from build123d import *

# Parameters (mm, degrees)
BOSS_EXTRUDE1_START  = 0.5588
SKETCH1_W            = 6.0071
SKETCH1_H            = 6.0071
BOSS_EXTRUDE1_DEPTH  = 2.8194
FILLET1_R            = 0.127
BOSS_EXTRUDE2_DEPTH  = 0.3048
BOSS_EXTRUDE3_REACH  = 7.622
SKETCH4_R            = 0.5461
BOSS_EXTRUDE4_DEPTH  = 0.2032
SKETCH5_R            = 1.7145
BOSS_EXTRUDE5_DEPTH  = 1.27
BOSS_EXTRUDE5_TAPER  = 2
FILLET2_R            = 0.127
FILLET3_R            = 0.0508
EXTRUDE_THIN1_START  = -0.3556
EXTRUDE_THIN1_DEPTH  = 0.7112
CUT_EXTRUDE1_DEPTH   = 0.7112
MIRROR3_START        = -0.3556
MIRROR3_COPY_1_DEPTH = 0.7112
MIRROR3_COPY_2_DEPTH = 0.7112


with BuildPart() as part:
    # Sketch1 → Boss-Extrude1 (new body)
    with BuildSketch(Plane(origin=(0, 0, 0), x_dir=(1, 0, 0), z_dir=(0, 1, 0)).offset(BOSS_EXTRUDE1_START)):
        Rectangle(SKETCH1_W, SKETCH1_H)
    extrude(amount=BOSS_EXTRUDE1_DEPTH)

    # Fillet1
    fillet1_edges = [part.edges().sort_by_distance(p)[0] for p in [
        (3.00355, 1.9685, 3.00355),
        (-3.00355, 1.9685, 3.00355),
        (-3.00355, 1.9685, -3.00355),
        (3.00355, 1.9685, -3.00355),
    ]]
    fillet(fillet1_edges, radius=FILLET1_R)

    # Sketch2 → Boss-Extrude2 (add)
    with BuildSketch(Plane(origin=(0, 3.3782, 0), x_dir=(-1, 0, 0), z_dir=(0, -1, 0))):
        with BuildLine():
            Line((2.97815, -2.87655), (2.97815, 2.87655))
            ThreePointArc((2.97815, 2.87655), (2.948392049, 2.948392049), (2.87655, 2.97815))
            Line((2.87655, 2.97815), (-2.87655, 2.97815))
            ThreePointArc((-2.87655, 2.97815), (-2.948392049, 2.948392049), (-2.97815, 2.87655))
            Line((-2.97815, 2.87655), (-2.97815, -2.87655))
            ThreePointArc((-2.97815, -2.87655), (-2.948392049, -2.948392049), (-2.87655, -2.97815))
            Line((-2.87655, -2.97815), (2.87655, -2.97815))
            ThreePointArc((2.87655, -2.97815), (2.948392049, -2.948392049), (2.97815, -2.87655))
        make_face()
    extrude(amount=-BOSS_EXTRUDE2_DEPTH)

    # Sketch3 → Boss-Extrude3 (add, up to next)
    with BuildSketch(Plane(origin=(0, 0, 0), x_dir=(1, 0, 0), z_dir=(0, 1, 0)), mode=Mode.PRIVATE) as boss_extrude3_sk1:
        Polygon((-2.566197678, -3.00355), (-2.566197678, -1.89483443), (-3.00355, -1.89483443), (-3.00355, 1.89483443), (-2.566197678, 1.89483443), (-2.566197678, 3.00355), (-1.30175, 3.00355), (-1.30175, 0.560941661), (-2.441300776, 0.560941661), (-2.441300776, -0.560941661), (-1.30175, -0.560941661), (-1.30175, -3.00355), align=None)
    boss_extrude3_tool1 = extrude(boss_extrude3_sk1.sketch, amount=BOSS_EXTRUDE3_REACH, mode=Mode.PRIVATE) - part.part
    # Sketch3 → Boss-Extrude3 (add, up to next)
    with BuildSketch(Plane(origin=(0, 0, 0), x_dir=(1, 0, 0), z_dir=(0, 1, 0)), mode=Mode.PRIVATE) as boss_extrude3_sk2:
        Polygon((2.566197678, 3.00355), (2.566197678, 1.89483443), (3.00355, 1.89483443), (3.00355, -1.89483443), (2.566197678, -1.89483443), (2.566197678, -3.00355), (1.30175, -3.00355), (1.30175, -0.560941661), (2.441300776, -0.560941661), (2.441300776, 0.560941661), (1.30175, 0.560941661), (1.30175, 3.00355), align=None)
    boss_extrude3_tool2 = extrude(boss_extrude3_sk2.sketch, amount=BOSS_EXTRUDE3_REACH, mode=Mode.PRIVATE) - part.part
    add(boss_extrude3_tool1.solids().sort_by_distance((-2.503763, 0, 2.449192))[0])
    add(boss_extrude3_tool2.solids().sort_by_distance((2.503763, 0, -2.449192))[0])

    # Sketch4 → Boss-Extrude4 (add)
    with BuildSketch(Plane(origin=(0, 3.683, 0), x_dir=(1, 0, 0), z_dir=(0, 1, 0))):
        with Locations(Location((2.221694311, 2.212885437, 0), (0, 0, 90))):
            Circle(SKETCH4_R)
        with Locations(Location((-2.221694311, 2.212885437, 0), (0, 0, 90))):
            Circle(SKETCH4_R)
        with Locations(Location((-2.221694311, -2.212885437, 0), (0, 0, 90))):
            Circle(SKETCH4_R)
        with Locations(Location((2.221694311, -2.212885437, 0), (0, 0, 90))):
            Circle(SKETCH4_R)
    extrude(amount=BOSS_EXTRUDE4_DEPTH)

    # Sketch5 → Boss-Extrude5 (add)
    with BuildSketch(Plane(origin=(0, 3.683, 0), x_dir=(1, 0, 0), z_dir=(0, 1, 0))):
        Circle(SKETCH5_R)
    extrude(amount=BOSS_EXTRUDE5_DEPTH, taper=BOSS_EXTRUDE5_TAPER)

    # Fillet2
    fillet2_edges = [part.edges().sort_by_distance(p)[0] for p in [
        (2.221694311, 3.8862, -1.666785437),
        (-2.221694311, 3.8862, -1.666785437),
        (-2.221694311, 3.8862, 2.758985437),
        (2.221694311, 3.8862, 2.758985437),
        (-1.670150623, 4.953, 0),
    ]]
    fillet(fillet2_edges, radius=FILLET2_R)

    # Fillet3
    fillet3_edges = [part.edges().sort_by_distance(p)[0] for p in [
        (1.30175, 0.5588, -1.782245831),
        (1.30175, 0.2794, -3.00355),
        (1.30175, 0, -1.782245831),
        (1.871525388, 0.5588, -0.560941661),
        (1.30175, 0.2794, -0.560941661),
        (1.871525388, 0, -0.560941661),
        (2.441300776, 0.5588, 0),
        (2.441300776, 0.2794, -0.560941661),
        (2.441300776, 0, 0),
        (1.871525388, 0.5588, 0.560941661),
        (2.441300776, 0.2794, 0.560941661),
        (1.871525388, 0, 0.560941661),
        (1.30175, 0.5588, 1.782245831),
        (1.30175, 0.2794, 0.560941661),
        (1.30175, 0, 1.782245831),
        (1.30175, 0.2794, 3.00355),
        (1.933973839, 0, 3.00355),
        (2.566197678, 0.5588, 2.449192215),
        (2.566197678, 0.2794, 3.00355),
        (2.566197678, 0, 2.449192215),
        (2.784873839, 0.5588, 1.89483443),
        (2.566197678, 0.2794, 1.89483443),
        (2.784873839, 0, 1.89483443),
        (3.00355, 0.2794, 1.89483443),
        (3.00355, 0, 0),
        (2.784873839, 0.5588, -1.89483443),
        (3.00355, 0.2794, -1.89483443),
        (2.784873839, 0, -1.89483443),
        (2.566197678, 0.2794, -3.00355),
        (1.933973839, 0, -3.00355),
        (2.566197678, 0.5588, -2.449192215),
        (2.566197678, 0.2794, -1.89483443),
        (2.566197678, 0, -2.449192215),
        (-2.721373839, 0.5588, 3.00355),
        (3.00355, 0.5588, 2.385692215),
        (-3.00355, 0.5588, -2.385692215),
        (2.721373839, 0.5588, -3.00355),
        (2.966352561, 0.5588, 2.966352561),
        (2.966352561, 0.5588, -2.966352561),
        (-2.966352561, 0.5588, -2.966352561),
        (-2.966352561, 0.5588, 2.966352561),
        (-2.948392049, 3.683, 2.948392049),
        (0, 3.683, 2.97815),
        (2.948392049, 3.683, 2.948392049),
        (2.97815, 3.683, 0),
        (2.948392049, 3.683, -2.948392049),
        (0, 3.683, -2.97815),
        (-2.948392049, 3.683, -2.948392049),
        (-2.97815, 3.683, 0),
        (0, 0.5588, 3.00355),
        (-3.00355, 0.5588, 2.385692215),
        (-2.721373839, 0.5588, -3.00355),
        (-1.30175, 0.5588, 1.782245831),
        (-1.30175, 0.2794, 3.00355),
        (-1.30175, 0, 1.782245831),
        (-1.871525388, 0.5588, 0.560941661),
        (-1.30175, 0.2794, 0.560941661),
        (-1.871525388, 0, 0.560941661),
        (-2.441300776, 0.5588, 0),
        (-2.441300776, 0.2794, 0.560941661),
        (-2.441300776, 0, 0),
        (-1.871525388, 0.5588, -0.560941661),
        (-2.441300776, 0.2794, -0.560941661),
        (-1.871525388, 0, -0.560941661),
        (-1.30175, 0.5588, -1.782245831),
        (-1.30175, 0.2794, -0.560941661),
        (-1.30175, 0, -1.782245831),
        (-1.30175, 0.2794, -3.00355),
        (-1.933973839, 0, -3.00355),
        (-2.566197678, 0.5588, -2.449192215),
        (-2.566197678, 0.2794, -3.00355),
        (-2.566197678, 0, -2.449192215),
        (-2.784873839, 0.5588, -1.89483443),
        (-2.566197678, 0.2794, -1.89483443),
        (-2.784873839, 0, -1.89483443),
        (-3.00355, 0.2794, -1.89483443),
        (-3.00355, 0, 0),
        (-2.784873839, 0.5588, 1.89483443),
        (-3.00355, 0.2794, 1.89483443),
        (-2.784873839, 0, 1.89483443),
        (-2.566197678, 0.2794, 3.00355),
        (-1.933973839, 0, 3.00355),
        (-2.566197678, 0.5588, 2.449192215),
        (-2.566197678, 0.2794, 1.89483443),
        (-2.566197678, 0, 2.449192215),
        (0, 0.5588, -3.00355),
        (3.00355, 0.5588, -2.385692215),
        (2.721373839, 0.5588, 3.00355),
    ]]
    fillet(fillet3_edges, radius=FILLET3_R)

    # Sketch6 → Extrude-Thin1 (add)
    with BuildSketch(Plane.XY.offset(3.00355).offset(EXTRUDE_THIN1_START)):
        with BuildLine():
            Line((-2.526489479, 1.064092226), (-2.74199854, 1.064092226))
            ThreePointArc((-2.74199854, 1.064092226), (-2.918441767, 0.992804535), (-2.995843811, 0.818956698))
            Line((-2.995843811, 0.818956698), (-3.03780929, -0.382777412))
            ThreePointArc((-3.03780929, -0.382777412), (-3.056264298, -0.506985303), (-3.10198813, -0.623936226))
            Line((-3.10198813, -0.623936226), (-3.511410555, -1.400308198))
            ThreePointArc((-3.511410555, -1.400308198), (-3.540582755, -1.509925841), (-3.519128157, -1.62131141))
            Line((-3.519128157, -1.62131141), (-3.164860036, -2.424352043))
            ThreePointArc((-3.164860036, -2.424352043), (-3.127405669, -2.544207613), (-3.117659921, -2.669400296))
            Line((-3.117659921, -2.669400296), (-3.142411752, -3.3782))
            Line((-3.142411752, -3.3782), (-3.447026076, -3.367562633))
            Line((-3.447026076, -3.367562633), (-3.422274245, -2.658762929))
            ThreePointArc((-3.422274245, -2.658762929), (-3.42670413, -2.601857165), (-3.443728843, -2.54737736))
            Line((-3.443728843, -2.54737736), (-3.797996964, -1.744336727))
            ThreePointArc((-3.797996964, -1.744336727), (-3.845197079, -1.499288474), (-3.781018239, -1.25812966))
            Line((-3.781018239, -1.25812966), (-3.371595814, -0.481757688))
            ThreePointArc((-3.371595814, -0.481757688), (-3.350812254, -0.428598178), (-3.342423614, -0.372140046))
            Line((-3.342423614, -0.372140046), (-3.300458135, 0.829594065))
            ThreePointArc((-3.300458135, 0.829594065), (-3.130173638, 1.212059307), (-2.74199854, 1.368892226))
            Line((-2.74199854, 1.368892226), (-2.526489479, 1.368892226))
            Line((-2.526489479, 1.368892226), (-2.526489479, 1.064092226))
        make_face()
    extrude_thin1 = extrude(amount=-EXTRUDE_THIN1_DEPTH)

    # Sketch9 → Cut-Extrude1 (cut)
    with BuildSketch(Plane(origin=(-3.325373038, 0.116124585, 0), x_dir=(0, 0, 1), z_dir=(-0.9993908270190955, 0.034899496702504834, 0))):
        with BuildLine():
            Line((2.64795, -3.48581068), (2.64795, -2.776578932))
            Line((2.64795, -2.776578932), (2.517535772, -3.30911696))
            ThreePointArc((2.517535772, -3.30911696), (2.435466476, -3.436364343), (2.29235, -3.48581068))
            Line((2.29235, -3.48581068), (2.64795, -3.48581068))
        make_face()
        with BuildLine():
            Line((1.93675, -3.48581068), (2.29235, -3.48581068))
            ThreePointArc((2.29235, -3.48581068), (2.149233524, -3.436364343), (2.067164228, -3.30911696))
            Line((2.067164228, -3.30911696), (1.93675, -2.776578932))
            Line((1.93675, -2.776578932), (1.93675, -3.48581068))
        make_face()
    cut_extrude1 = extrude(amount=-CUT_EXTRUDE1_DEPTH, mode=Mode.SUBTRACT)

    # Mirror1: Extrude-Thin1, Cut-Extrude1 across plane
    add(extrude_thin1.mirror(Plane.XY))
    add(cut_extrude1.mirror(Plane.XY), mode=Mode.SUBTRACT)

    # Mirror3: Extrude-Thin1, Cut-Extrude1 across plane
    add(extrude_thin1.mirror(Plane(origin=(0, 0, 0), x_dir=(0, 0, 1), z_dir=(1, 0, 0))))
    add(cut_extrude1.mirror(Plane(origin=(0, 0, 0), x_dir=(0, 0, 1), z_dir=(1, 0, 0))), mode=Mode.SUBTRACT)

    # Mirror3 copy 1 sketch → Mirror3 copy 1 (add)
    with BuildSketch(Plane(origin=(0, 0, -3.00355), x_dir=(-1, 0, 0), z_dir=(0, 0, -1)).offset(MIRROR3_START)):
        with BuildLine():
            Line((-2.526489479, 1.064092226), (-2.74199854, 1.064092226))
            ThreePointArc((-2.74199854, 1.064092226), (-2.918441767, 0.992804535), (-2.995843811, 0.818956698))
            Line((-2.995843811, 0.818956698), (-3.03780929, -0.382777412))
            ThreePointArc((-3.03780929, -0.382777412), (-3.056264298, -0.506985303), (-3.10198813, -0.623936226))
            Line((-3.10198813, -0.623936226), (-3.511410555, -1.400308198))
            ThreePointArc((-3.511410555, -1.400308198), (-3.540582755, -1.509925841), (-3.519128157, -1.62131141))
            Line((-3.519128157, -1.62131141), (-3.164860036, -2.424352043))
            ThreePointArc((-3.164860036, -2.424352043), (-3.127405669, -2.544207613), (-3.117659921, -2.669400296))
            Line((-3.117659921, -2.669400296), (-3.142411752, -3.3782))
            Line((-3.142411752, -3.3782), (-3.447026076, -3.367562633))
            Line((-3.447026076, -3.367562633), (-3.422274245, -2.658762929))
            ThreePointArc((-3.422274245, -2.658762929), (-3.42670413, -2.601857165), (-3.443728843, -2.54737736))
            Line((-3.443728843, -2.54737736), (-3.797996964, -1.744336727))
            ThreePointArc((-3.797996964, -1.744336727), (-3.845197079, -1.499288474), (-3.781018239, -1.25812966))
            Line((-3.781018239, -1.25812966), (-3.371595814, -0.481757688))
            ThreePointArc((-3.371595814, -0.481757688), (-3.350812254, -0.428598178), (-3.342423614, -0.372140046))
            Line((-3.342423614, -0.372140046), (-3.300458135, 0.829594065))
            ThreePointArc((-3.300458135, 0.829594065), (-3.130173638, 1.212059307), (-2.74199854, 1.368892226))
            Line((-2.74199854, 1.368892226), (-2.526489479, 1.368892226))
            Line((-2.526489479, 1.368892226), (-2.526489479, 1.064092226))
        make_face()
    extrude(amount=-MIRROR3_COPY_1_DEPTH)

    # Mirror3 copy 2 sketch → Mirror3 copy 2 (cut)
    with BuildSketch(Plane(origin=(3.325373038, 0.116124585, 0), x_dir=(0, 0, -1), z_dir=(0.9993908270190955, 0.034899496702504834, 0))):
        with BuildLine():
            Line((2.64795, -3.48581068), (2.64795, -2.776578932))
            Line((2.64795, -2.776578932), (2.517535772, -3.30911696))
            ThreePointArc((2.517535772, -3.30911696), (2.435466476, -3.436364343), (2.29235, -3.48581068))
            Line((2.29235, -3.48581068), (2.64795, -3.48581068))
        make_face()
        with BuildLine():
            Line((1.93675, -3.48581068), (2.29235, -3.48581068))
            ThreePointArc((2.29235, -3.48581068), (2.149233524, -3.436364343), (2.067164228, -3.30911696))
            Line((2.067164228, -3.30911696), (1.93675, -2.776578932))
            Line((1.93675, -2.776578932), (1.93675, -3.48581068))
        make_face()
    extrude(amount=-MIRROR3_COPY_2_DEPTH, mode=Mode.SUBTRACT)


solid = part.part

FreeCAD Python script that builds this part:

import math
import FreeCAD as App
import Part
import Sketcher

V = App.Vector
Q = App.Units.Quantity


def edges_at(feature, points):
    """Names of the edges that pass closest to the given points."""
    edges = feature.Shape.Edges
    near = lambda p: min(range(len(edges)), key=lambda i: edges[i].distToShape(Part.Vertex(*p))[0])
    return sorted({f"Edge{near(p) + 1}" for p in points})

doc = App.newDocument("Part")
body = doc.addObject("PartDesign::Body", "Body")

# Sketch on XZ plane
sketch1 = body.newObject("Sketcher::SketchObject", "Sketch")
sketch1.AttachmentSupport = (doc.getObject("XZ_Plane"), [""])
sketch1.MapMode = "FlatFace"
sketch1.AttachmentOffset = App.Placement(V(0, 0, -0.022 * 25.4), App.Rotation())
sketch1.addGeometry([
    Part.LineSegment(V(-3, -3, 0), V(-3, 3, 0)),
    Part.LineSegment(V(-3, 3, 0), V(3, 3, 0)),
    Part.LineSegment(V(3, 3, 0), V(3, -3, 0)),
    Part.LineSegment(V(3, -3, 0), V(-3, -3, 0)),
], False)
sketch1.addConstraint([
    Sketcher.Constraint("Coincident", 0, 2, 1, 1),
    Sketcher.Constraint("Coincident", 1, 2, 2, 1),
    Sketcher.Constraint("Coincident", 2, 2, 3, 1),
    Sketcher.Constraint("Coincident", 3, 2, 0, 1),
    Sketcher.Constraint("Vertical", 0),
    Sketcher.Constraint("Horizontal", 1),
    Sketcher.Constraint("Vertical", 2),
    Sketcher.Constraint("Horizontal", 3),
    Sketcher.Constraint("Symmetric", 0, 2, 2, 2, -1, 1),
    Sketcher.Constraint("Equal", 3, 0),
    Sketcher.Constraint("DistanceX", 1, 1, 1, 2, Q("0.2365 in")),
])
pad1 = body.newObject("PartDesign::Pad", "Pad")
pad1.Profile = sketch1
pad1.Length = Q("0.111 in")
pad1.Reversed = True
doc.recompute()

fillet = body.newObject("PartDesign::Fillet", "Fillet")
fillet.Base = (pad1, edges_at(pad1, [
    (3.004, 1.968, 3.004),
    (-3.004, 1.968, 3.004),
    (-3.004, 1.968, -3.004),
    (3.004, 1.968, -3.004),
]))
fillet.Radius = Q("0.005 in")

# Sketch on XZ plane
sketch2 = body.newObject("Sketcher::SketchObject", "Sketch001")
sketch2.AttachmentSupport = (doc.getObject("XZ_Plane"), [""])
sketch2.MapMode = "FlatFace"
sketch2.AttachmentOffset = App.Placement(V(0, 0, -0.133 * 25.4), App.Rotation())
sketch2.addGeometry([
    Part.LineSegment(V(-2.98, 2.88, 0), V(-2.98, -2.88, 0)),  # 0
    Part.ArcOfCircle(Part.Circle(V(-2.88, -2.88, 0), V(0, 0, 1), 0.1), math.radians(180), math.radians(270)),  # 1
    Part.LineSegment(V(-2.88, -2.98, 0), V(2.88, -2.98, 0)),  # 2
    Part.ArcOfCircle(Part.Circle(V(2.88, -2.88, 0), V(0, 0, 1), 0.1), math.radians(-90), math.radians(0)),  # 3
    Part.LineSegment(V(2.98, -2.88, 0), V(2.98, 2.88, 0)),  # 4
    Part.ArcOfCircle(Part.Circle(V(2.88, 2.88, 0), V(0, 0, 1), 0.1), math.radians(0), math.radians(90)),  # 5
    Part.LineSegment(V(2.88, 2.98, 0), V(-2.88, 2.98, 0)),  # 6
    Part.ArcOfCircle(Part.Circle(V(-2.88, 2.88, 0), V(0, 0, 1), 0.1), math.radians(90), math.radians(180)),  # 7
], False)
sketch2.addConstraint([
    Sketcher.Constraint("Tangent", 0, 2, 1, 1),
    Sketcher.Constraint("Tangent", 1, 2, 2, 1),
    Sketcher.Constraint("Tangent", 2, 2, 3, 1),
    Sketcher.Constraint("Tangent", 3, 2, 4, 1),
    Sketcher.Constraint("Tangent", 4, 2, 5, 1),
    Sketcher.Constraint("Tangent", 5, 2, 6, 1),
    Sketcher.Constraint("Tangent", 6, 2, 7, 1),
    Sketcher.Constraint("Tangent", 7, 2, 0, 1),
    Sketcher.Constraint("Vertical", 0),
    Sketcher.Constraint("Horizontal", 2),
    Sketcher.Constraint("Vertical", 4),
    Sketcher.Constraint("Horizontal", 6),
    Sketcher.Constraint("Equal", 1, 3),
    Sketcher.Constraint("Equal", 3, 5),
    Sketcher.Constraint("Equal", 5, 7),
    Sketcher.Constraint("Symmetric", 1, 3, 5, 3, -1, 1),
    Sketcher.Constraint("Equal", 6, 0),
    Sketcher.Constraint("Radius", 1, Q("0.004 in")),
    Sketcher.Constraint("DistanceX", 2, 1, 2, 2, Q("0.2265 in")),
])
pad2 = body.newObject("PartDesign::Pad", "Pad001")
pad2.Profile = sketch2
pad2.Length = Q("0.012 in")
pad2.Reversed = True

# Sketch on XZ plane
sketch3 = body.newObject("Sketcher::SketchObject", "Sketch002")
sketch3.AttachmentSupport = (doc.getObject("XZ_Plane"), [""])
sketch3.MapMode = "FlatFace"
sketch3.addGeometry([
    Part.LineSegment(V(-2.57, 1.89, 0), V(-2.57, 3, 0)),  # 0
    Part.LineSegment(V(-2.57, 3, 0), V(-1.3, 3, 0)),  # 1
    Part.LineSegment(V(-1.3, 3, 0), V(-1.3, 0.56, 0)),  # 2
    Part.LineSegment(V(-1.3, 0.56, 0), V(-2.44, 0.56, 0)),  # 3
    Part.LineSegment(V(-2.44, 0.56, 0), V(-2.44, -0.56, 0)),  # 4
    Part.LineSegment(V(-2.44, -0.56, 0), V(-1.3, -0.56, 0)),  # 5
    Part.LineSegment(V(-1.3, -0.56, 0), V(-1.3, -3, 0)),  # 6
    Part.LineSegment(V(-1.3, -3, 0), V(-2.57, -3, 0)),  # 7
    Part.LineSegment(V(-2.57, -3, 0), V(-2.57, -1.89, 0)),  # 8
    Part.LineSegment(V(-2.57, -1.89, 0), V(-3, -1.89, 0)),  # 9
    Part.LineSegment(V(-3, -1.89, 0), V(-3, 1.89, 0)),  # 10
    Part.LineSegment(V(-3, 1.89, 0), V(-2.57, 1.89, 0)),  # 11
], False)
sketch3.addConstraint([
    Sketcher.Constraint("Coincident", 0, 2, 1, 1),
    Sketcher.Constraint("Coincident", 1, 2, 2, 1),
    Sketcher.Constraint("Coincident", 2, 2, 3, 1),
    Sketcher.Constraint("Coincident", 3, 2, 4, 1),
    Sketcher.Constraint("Coincident", 4, 2, 5, 1),
    Sketcher.Constraint("Coincident", 5, 2, 6, 1),
    Sketcher.Constraint("Coincident", 6, 2, 7, 1),
    Sketcher.Constraint("Coincident", 7, 2, 8, 1),
    Sketcher.Constraint("Coincident", 8, 2, 9, 1),
    Sketcher.Constraint("Coincident", 9, 2, 10, 1),
    Sketcher.Constraint("Coincident", 10, 2, 11, 1),
    Sketcher.Constraint("Coincident", 11, 2, 0, 1),
    Sketcher.Constraint("Vertical", 0),
    Sketcher.Constraint("Horizontal", 1),
    Sketcher.Constraint("Vertical", 2),
    Sketcher.Constraint("Horizontal", 3),
    Sketcher.Constraint("Vertical", 4),
    Sketcher.Constraint("Horizontal", 5),
    Sketcher.Constraint("Vertical", 6),
    Sketcher.Constraint("Horizontal", 7),
    Sketcher.Constraint("Vertical", 8),
    Sketcher.Constraint("Horizontal", 9),
    Sketcher.Constraint("Vertical", 10),
    Sketcher.Constraint("Horizontal", 11),
    Sketcher.Constraint("Symmetric", 2, 2, 5, 2, -1),
    Sketcher.Constraint("Symmetric", 0, 2, 7, 2, -1),
    Sketcher.Constraint("Equal", 0, 8),
    Sketcher.Constraint("DistanceX", 9, 2, 6, 2, Q("0.067 in")),
    Sketcher.Constraint("DistanceY", 6, 2, 1, 2, Q("0.2365 in")),
    Sketcher.Constraint("DistanceX", 3, 2, 3, 1, Q("1.139551 mm")),
    Sketcher.Constraint("DistanceY", 2, 2, 2, 1, Q("2.442608 mm")),
    Sketcher.Constraint("DistanceY", 10, 1, 10, 2, Q("3.789669 mm")),
    Sketcher.Constraint("DistanceX", 3, 2, -1, 1, Q("2.441301 mm")),
    Sketcher.Constraint("DistanceX", 1, 1, 1, 2, Q("1.264448 mm")),
])
pad3 = body.newObject("PartDesign::Pad", "Pad002")
pad3.Profile = sketch3
pad3.Type = "UpToFirst"
pad3.Reversed = True

# Sketch on XZ plane
sketch4 = body.newObject("Sketcher::SketchObject", "Sketch003")
sketch4.AttachmentSupport = (doc.getObject("XZ_Plane"), [""])
sketch4.MapMode = "FlatFace"
sketch4.addGeometry([
    Part.LineSegment(V(2.57, -1.89, 0), V(2.57, -3, 0)),  # 0
    Part.LineSegment(V(2.57, -3, 0), V(1.3, -3, 0)),  # 1
    Part.LineSegment(V(1.3, -3, 0), V(1.3, -0.56, 0)),  # 2
    Part.LineSegment(V(1.3, -0.56, 0), V(2.44, -0.56, 0)),  # 3
    Part.LineSegment(V(2.44, -0.56, 0), V(2.44, 0.56, 0)),  # 4
    Part.LineSegment(V(2.44, 0.56, 0), V(1.3, 0.56, 0)),  # 5
    Part.LineSegment(V(1.3, 0.56, 0), V(1.3, 3, 0)),  # 6
    Part.LineSegment(V(1.3, 3, 0), V(2.57, 3, 0)),  # 7
    Part.LineSegment(V(2.57, 3, 0), V(2.57, 1.89, 0)),  # 8
    Part.LineSegment(V(2.57, 1.89, 0), V(3, 1.89, 0)),  # 9
    Part.LineSegment(V(3, 1.89, 0), V(3, -1.89, 0)),  # 10
    Part.LineSegment(V(3, -1.89, 0), V(2.57, -1.89, 0)),  # 11
], False)
sketch4.addConstraint([
    Sketcher.Constraint("Coincident", 0, 2, 1, 1),
    Sketcher.Constraint("Coincident", 1, 2, 2, 1),
    Sketcher.Constraint("Coincident", 2, 2, 3, 1),
    Sketcher.Constraint("Coincident", 3, 2, 4, 1),
    Sketcher.Constraint("Coincident", 4, 2, 5, 1),
    Sketcher.Constraint("Coincident", 5, 2, 6, 1),
    Sketcher.Constraint("Coincident", 6, 2, 7, 1),
    Sketcher.Constraint("Coincident", 7, 2, 8, 1),
    Sketcher.Constraint("Coincident", 8, 2, 9, 1),
    Sketcher.Constraint("Coincident", 9, 2, 10, 1),
    Sketcher.Constraint("Coincident", 10, 2, 11, 1),
    Sketcher.Constraint("Coincident", 11, 2, 0, 1),
    Sketcher.Constraint("Vertical", 0),
    Sketcher.Constraint("Horizontal", 1),
    Sketcher.Constraint("Vertical", 2),
    Sketcher.Constraint("Horizontal", 3),
    Sketcher.Constraint("Vertical", 4),
    Sketcher.Constraint("Horizontal", 5),
    Sketcher.Constraint("Vertical", 6),
    Sketcher.Constraint("Horizontal", 7),
    Sketcher.Constraint("Vertical", 8),
    Sketcher.Constraint("Horizontal", 9),
    Sketcher.Constraint("Vertical", 10),
    Sketcher.Constraint("Horizontal", 11),
    Sketcher.Constraint("Symmetric", 2, 2, 5, 2, -1),
    Sketcher.Constraint("Symmetric", 0, 2, 7, 2, -1),
    Sketcher.Constraint("Equal", 0, 8),
    Sketcher.Constraint("DistanceX", 6, 2, 9, 2, Q("0.067 in")),
    Sketcher.Constraint("DistanceY", 1, 2, 6, 2, Q("0.2365 in")),
    Sketcher.Constraint("DistanceX", 3, 1, 3, 2, Q("1.139551 mm")),
    Sketcher.Constraint("DistanceY", 2, 1, 2, 2, Q("2.442608 mm")),
    Sketcher.Constraint("DistanceY", 10, 2, 10, 1, Q("3.789669 mm")),
    Sketcher.Constraint("DistanceX", -1, 1, 3, 2, Q("2.441301 mm")),
    Sketcher.Constraint("DistanceX", 1, 2, 1, 1, Q("1.264448 mm")),
])
pad4 = body.newObject("PartDesign::Pad", "Pad003")
pad4.Profile = sketch4
pad4.Type = "UpToFirst"
pad4.Reversed = True

# Sketch on XZ plane
sketch5 = body.newObject("Sketcher::SketchObject", "Sketch004")
sketch5.AttachmentSupport = (doc.getObject("XZ_Plane"), [""])
sketch5.MapMode = "FlatFace"
sketch5.AttachmentOffset = App.Placement(V(0, 0, -0.145 * 25.4), App.Rotation())
sketch5.addGeometry([
    Part.Circle(V(2.2, -2.2, 0), V(0, 0, 1), 0.5),
    Part.Circle(V(-2.2, -2.2, 0), V(0, 0, 1), 0.5),
    Part.Circle(V(-2.2, 2.2, 0), V(0, 0, 1), 0.5),
    Part.Circle(V(2.2, 2.2, 0), V(0, 0, 1), 0.5),
], False)
sketch5.addConstraint([
    Sketcher.Constraint("Equal", 0, 1),
    Sketcher.Constraint("Equal", 1, 2),
    Sketcher.Constraint("Equal", 2, 3),
    Sketcher.Constraint("Symmetric", 0, 3, 2, 3, -1, 1),
    Sketcher.Constraint("Symmetric", 1, 3, 3, 3, -1, 1),
    Sketcher.Constraint("Symmetric", 0, 3, 1, 3, -2),
    Sketcher.Constraint("Diameter", 0, Q("0.043 in")),
    Sketcher.Constraint("DistanceX", 1, 3, 0, 3, Q("4.443389 mm")),
    Sketcher.Constraint("DistanceY", 1, 3, 2, 3, Q("4.425771 mm")),
])
pad5 = body.newObject("PartDesign::Pad", "Pad004")
pad5.Profile = sketch5
pad5.Length = Q("0.008 in")
pad5.Reversed = True

# Sketch on XZ plane
sketch6 = body.newObject("Sketcher::SketchObject", "Sketch005")
sketch6.AttachmentSupport = (doc.getObject("XZ_Plane"), [""])
sketch6.MapMode = "FlatFace"
sketch6.AttachmentOffset = App.Placement(V(0, 0, -0.145 * 25.4), App.Rotation())
sketch6.addGeometry(Part.Circle(V(0, 0, 0), V(0, 0, 1), 1.7), False)
sketch6.addConstraint([
    Sketcher.Constraint("Coincident", 0, 3, -1, 1),
    Sketcher.Constraint("Diameter", 0, Q("0.135 in")),
])
pad6 = body.newObject("PartDesign::Pad", "Pad005")
pad6.Profile = sketch6
pad6.Length = Q("0.05 in")
pad6.Reversed = True
pad6.TaperAngle = -2
doc.recompute()

fillet2 = body.newObject("PartDesign::Fillet", "Fillet001")
fillet2.Base = (pad6, edges_at(pad6, [
    (2.222, 3.886, -1.667),
    (-2.222, 3.886, -1.667),
    (-2.222, 3.886, 2.759),
    (2.222, 3.886, 2.759),
    (-1.67, 4.953, 0),
]))
fillet2.Radius = Q("0.005 in")
doc.recompute()

fillet3 = body.newObject("PartDesign::Fillet", "Fillet002")
fillet3.Base = (fillet2, edges_at(fillet2, [
    (1.302, 0.559, -1.782),
    (1.302, 0.279, -3.004),
    (1.302, 0, -1.782),
    (1.872, 0.559, -0.561),
    (1.302, 0.279, -0.561),
    (1.872, 0, -0.561),
    (2.441, 0.559, 0),
    (2.441, 0.279, -0.561),
    (2.441, 0, 0),
    (1.872, 0.559, 0.561),
    (2.441, 0.279, 0.561),
    (1.872, 0, 0.561),
    (1.302, 0.559, 1.782),
    (1.302, 0.279, 0.561),
    (1.302, 0, 1.782),
    (1.302, 0.279, 3.004),
    (1.934, 0, 3.004),
    (2.566, 0.559, 2.449),
    (2.566, 0.279, 3.004),
    (2.566, 0, 2.449),
    (2.785, 0.559, 1.895),
    (2.566, 0.279, 1.895),
    (2.785, 0, 1.895),
    (3.004, 0.279, 1.895),
    (3.004, 0, 0),
    (2.785, 0.559, -1.895),
    (3.004, 0.279, -1.895),
    (2.785, 0, -1.895),
    (2.566, 0.279, -3.004),
    (1.934, 0, -3.004),
    (2.566, 0.559, -2.449),
    (2.566, 0.279, -1.895),
    (2.566, 0, -2.449),
    (-2.721, 0.559, 3.004),
    (3.004, 0.559, 2.386),
    (-3.004, 0.559, -2.386),
    (2.721, 0.559, -3.004),
    (2.966, 0.559, 2.966),
    (2.966, 0.559, -2.966),
    (-2.966, 0.559, -2.966),
    (-2.966, 0.559, 2.966),
    (-2.948, 3.683, 2.948),
    (0, 3.683, 2.978),
    (2.948, 3.683, 2.948),
    (2.978, 3.683, 0),
    (2.948, 3.683, -2.948),
    (0, 3.683, -2.978),
    (-2.948, 3.683, -2.948),
    (-2.978, 3.683, 0),
    (0, 0.559, 3.004),
    (-3.004, 0.559, 2.386),
    (-2.721, 0.559, -3.004),
    (-1.302, 0.559, 1.782),
    (-1.302, 0.279, 3.004),
    (-1.302, 0, 1.782),
    (-1.872, 0.559, 0.561),
    (-1.302, 0.279, 0.561),
    (-1.872, 0, 0.561),
    (-2.441, 0.559, 0),
    (-2.441, 0.279, 0.561),
    (-2.441, 0, 0),
    (-1.872, 0.559, -0.561),
    (-2.441, 0.279, -0.561),
    (-1.872, 0, -0.561),
    (-1.302, 0.559, -1.782),
    (-1.302, 0.279, -0.561),
    (-1.302, 0, -1.782),
    (-1.302, 0.279, -3.004),
    (-1.934, 0, -3.004),
    (-2.566, 0.559, -2.449),
    (-2.566, 0.279, -3.004),
    (-2.566, 0, -2.449),
    (-2.785, 0.559, -1.895),
    (-2.566, 0.279, -1.895),
    (-2.785, 0, -1.895),
    (-3.004, 0.279, -1.895),
    (-3.004, 0, 0),
    (-2.785, 0.559, 1.895),
    (-3.004, 0.279, 1.895),
    (-2.785, 0, 1.895),
    (-2.566, 0.279, 3.004),
    (-1.934, 0, 3.004),
    (-2.566, 0.559, 2.449),
    (-2.566, 0.279, 1.895),
    (-2.566, 0, 2.449),
    (0, 0.559, -3.004),
    (3.004, 0.559, -2.386),
    (2.721, 0.559, 3.004),
]))
fillet3.Radius = Q("0.002 in")

# Sketch on XY plane
sketch7 = body.newObject("Sketcher::SketchObject", "Sketch006")
sketch7.AttachmentSupport = (doc.getObject("XY_Plane"), [""])
sketch7.MapMode = "FlatFace"
sketch7.AttachmentOffset = App.Placement(V(0, 0, 2.64795), App.Rotation())
sketch7.addGeometry([
    Part.LineSegment(V(-2.74, 1.06, 0), V(-2.53, 1.06, 0)),  # 0
    Part.LineSegment(V(-2.53, 1.06, 0), V(-2.53, 1.37, 0)),  # 1
    Part.LineSegment(V(-2.53, 1.37, 0), V(-2.74, 1.37, 0)),  # 2
    Part.ArcOfCircle(Part.Circle(V(-2.74, 0.81, 0), V(0, 0, 1), 0.56), math.radians(90), math.radians(178)),  # 3
    Part.LineSegment(V(-3.3, 0.83, 0), V(-3.34, -0.37, 0)),  # 4
    Part.ArcOfCircle(Part.Circle(V(-3.6, -0.36, 0), V(0, 0, 1), 0.25), math.radians(-28), math.radians(-2)),  # 5
    Part.LineSegment(V(-3.37, -0.48, 0), V(-3.78, -1.26, 0)),  # 6
    Part.ArcOfCircle(Part.Circle(V(-3.29, -1.52, 0), V(0, 0, 1), 0.56), math.radians(152), math.radians(204)),  # 7
    Part.LineSegment(V(-3.8, -1.74, 0), V(-3.44, -2.55, 0)),  # 8
    Part.ArcOfCircle(Part.Circle(V(-3.68, -2.65, 0), V(0, 0, 1), 0.25), math.radians(-2), math.radians(24)),  # 9
    Part.LineSegment(V(-3.42, -2.66, 0), V(-3.45, -3.37, 0)),  # 10
    Part.LineSegment(V(-3.45, -3.37, 0), V(-3.14, -3.38, 0)),  # 11
    Part.LineSegment(V(-3.14, -3.38, 0), V(-3.12, -2.67, 0)),  # 12
    Part.ArcOfCircle(Part.Circle(V(-3.68, -2.65, 0), V(0, 0, 1), 0.56), math.radians(-2), math.radians(24)),  # 13
    Part.LineSegment(V(-3.16, -2.42, 0), V(-3.52, -1.62, 0)),  # 14
    Part.ArcOfCircle(Part.Circle(V(-3.29, -1.52, 0), V(0, 0, 1), 0.25), math.radians(152), math.radians(204)),  # 15
    Part.LineSegment(V(-3.51, -1.4, 0), V(-3.1, -0.62, 0)),  # 16
    Part.ArcOfCircle(Part.Circle(V(-3.6, -0.36, 0), V(0, 0, 1), 0.56), math.radians(-28), math.radians(-2)),  # 17
    Part.LineSegment(V(-3.04, -0.38, 0), V(-3, 0.82, 0)),  # 18
    Part.ArcOfCircle(Part.Circle(V(-2.74, 0.81, 0), V(0, 0, 1), 0.25), math.radians(90), math.radians(178)),  # 19
], False)
sketch7.addConstraint([
    Sketcher.Constraint("Coincident", 0, 2, 1, 1),
    Sketcher.Constraint("Coincident", 1, 2, 2, 1),
    Sketcher.Constraint("Tangent", 2, 2, 3, 1),
    Sketcher.Constraint("Tangent", 3, 2, 4, 1),
    Sketcher.Constraint("Tangent", 4, 2, 5, 2),
    Sketcher.Constraint("Tangent", 5, 1, 6, 1),
    Sketcher.Constraint("Tangent", 6, 2, 7, 1),
    Sketcher.Constraint("Tangent", 7, 2, 8, 1),
    Sketcher.Constraint("Tangent", 8, 2, 9, 2),
    Sketcher.Constraint("Tangent", 9, 1, 10, 1),
    Sketcher.Constraint("Coincident", 10, 2, 11, 1),
    Sketcher.Constraint("Coincident", 11, 2, 12, 1),
    Sketcher.Constraint("Tangent", 12, 2, 13, 1),
    Sketcher.Constraint("Tangent", 13, 2, 14, 1),
    Sketcher.Constraint("Tangent", 14, 2, 15, 2),
    Sketcher.Constraint("Tangent", 15, 1, 16, 1),
    Sketcher.Constraint("Tangent", 16, 2, 17, 1),
    Sketcher.Constraint("Tangent", 17, 2, 18, 1),
    Sketcher.Constraint("Tangent", 18, 2, 19, 2),
    Sketcher.Constraint("Tangent", 19, 1, 0, 1),
    Sketcher.Constraint("Horizontal", 0),
    Sketcher.Constraint("Vertical", 1),
    Sketcher.Constraint("Horizontal", 2),
    Sketcher.Constraint("Coincident", 13, 3, 9, 3),
    Sketcher.Constraint("Coincident", 15, 3, 7, 3),
    Sketcher.Constraint("Coincident", 17, 3, 5, 3),
    Sketcher.Constraint("Coincident", 19, 3, 3, 3),
    Sketcher.Constraint("Equal", 3, 7),
    Sketcher.Constraint("Equal", 5, 9),
    Sketcher.Constraint("Equal", 7, 13),
    Sketcher.Constraint("Equal", 9, 15),
    Sketcher.Constraint("Equal", 13, 17),
    Sketcher.Constraint("Equal", 15, 19),
    Sketcher.Constraint("Parallel", 4, 10),
    Sketcher.Constraint("Perpendicular", 10, 11),
    Sketcher.Constraint("Perpendicular", 11, 12),
    Sketcher.Constraint("Equal", 6, 8),
    Sketcher.Constraint("Radius", 5, Q("0.01 in")),
    Sketcher.Constraint("Angle", 4, Q("-92 deg")),
    Sketcher.Constraint("Radius", 3, Q("0.022 in")),
    Sketcher.Constraint("DistanceY", 11, 2, -1, 1, Q("0.133 in")),
    Sketcher.Constraint("DistanceX", 0, 1, 0, 2, Q("0.215509 mm")),
    Sketcher.Constraint("DistanceX", 3, 3, -1, 1, Q("2.741999 mm")),
    Sketcher.Constraint("DistanceY", 9, 3, -1, 1, Q("2.649898 mm")),
    Sketcher.Constraint("DistanceX", 13, 2, 12, 2, Q("0.0472 mm")),
    Sketcher.Constraint("DistanceX", 5, 3, -1, 1, Q("3.596269 mm")),
    Sketcher.Constraint("DistanceY", 7, 3, -1, 1, Q("1.51879 mm")),
    Sketcher.Constraint("DistanceX", 9, 3, -1, 1, Q("3.67612 mm")),
])
pad7 = body.newObject("PartDesign::Pad", "Pad006")
pad7.Profile = sketch7
pad7.Length = Q("0.028 in")
pad7.Reversed = True

# Sketch on an angled plane
sketch8 = body.newObject("Sketcher::SketchObject", "Sketch007")
sketch8.Placement = App.Placement(V(-3.325373, 0.116125, 0), App.Rotation(V(0, 0, 1), V(0.034899497, 0.999390827, 0), V(-0.999390827, 0.034899497, 0), "ZXY"))
sketch8.addGeometry([
    Part.LineSegment(V(2.65, -3.49, 0), V(2.65, -2.78, 0)),  # 0
    Part.LineSegment(V(2.65, -2.78, 0), V(2.52, -3.31, 0)),  # 1
    Part.ArcOfCircle(Part.Circle(V(2.29, -3.25, 0), V(0, 0, 1), 0.23), math.radians(-90), math.radians(-14)),  # 2
    Part.LineSegment(V(2.29, -3.49, 0), V(2.65, -3.49, 0)),  # 3
    Part.LineSegment(V(1.94, -3.49, 0), V(2.29, -3.49, 0)),  # 4
    Part.ArcOfCircle(Part.Circle(V(2.29, -3.25, 0), V(0, 0, 1), 0.23), math.radians(-166), math.radians(-90)),  # 5
    Part.LineSegment(V(2.07, -3.31, 0), V(1.94, -2.78, 0)),  # 6
    Part.LineSegment(V(1.94, -2.78, 0), V(1.94, -3.49, 0)),  # 7
], False)
sketch8.addConstraint([
    Sketcher.Constraint("Coincident", 0, 2, 1, 1),
    Sketcher.Constraint("Tangent", 1, 2, 2, 2),
    Sketcher.Constraint("Tangent", 2, 1, 3, 1),
    Sketcher.Constraint("Coincident", 3, 2, 0, 1),
    Sketcher.Constraint("Tangent", 4, 2, 5, 2),
    Sketcher.Constraint("Tangent", 5, 1, 6, 1),
    Sketcher.Constraint("Coincident", 6, 2, 7, 1),
    Sketcher.Constraint("Coincident", 7, 2, 4, 1),
    Sketcher.Constraint("Vertical", 0),
    Sketcher.Constraint("Horizontal", 3),
    Sketcher.Constraint("Horizontal", 4),
    Sketcher.Constraint("Vertical", 7),
    Sketcher.Constraint("Coincident", 5, 3, 2, 3),
    Sketcher.Constraint("Equal", 2, 5),
    Sketcher.Constraint("Horizontal", 1, 2, 5, 1),
    Sketcher.Constraint("Horizontal", 0, 2, 6, 2),
    Sketcher.Constraint("DistanceX", 3, 1, 3, 2, Q("0.014 in")),
    Sketcher.Constraint("Radius", 2, Q("0.23184 mm")),
    Sketcher.Constraint("DistanceY", 0, 1, 0, 2, Q("0.709232 mm")),
    Sketcher.Constraint("DistanceX", -1, 1, 2, 3, Q("2.29235 mm")),
    Sketcher.Constraint("DistanceY", 2, 3, -1, 1, Q("3.253971 mm")),
])
pocket1 = body.newObject("PartDesign::Pocket", "Pocket")
pocket1.Profile = sketch8
pocket1.Length = Q("0.028 in")
doc.recompute()

mirrored = body.newObject("PartDesign::Mirrored", "Mirrored")
mirrored.Originals = [pad7, pocket1]
mirrored.MirrorPlane = (doc.getObject("XY_Plane"), [""])
body.Tip = mirrored
doc.recompute()

mirrored2 = body.newObject("PartDesign::Mirrored", "Mirrored001")
mirrored2.Originals = [pad7, pocket1]
mirrored2.MirrorPlane = (doc.getObject("YZ_Plane"), [""])
body.Tip = mirrored2

# Sketch on XY plane
sketch9 = body.newObject("Sketcher::SketchObject", "Sketch008")
sketch9.AttachmentSupport = (doc.getObject("XY_Plane"), [""])
sketch9.MapMode = "FlatFace"
sketch9.AttachmentOffset = App.Placement(V(0, 0, -2.64795), App.Rotation())
sketch9.addGeometry([
    Part.LineSegment(V(2.74, 1.06, 0), V(2.53, 1.06, 0)),  # 0
    Part.LineSegment(V(2.53, 1.06, 0), V(2.53, 1.37, 0)),  # 1
    Part.LineSegment(V(2.53, 1.37, 0), V(2.74, 1.37, 0)),  # 2
    Part.ArcOfCircle(Part.Circle(V(2.74, 0.81, 0), V(0, 0, 1), 0.56), math.radians(2), math.radians(90)),  # 3
    Part.LineSegment(V(3.3, 0.83, 0), V(3.34, -0.37, 0)),  # 4
    Part.ArcOfCircle(Part.Circle(V(3.6, -0.36, 0), V(0, 0, 1), 0.25), math.radians(-178), math.radians(-152)),  # 5
    Part.LineSegment(V(3.37, -0.48, 0), V(3.78, -1.26, 0)),  # 6
    Part.ArcOfCircle(Part.Circle(V(3.29, -1.52, 0), V(0, 0, 1), 0.56), math.radians(-24), math.radians(28)),  # 7
    Part.LineSegment(V(3.8, -1.74, 0), V(3.44, -2.55, 0)),  # 8
    Part.ArcOfCircle(Part.Circle(V(3.68, -2.65, 0), V(0, 0, 1), 0.25), math.radians(156), math.radians(182)),  # 9
    Part.LineSegment(V(3.42, -2.66, 0), V(3.45, -3.37, 0)),  # 10
    Part.LineSegment(V(3.45, -3.37, 0), V(3.14, -3.38, 0)),  # 11
    Part.LineSegment(V(3.14, -3.38, 0), V(3.12, -2.67, 0)),  # 12
    Part.ArcOfCircle(Part.Circle(V(3.68, -2.65, 0), V(0, 0, 1), 0.56), math.radians(156), math.radians(182)),  # 13
    Part.LineSegment(V(3.16, -2.42, 0), V(3.52, -1.62, 0)),  # 14
    Part.ArcOfCircle(Part.Circle(V(3.29, -1.52, 0), V(0, 0, 1), 0.25), math.radians(-24), math.radians(28)),  # 15
    Part.LineSegment(V(3.51, -1.4, 0), V(3.1, -0.62, 0)),  # 16
    Part.ArcOfCircle(Part.Circle(V(3.6, -0.36, 0), V(0, 0, 1), 0.56), math.radians(-178), math.radians(-152)),  # 17
    Part.LineSegment(V(3.04, -0.38, 0), V(3, 0.82, 0)),  # 18
    Part.ArcOfCircle(Part.Circle(V(2.74, 0.81, 0), V(0, 0, 1), 0.25), math.radians(2), math.radians(90)),  # 19
], False)
sketch9.addConstraint([
    Sketcher.Constraint("Coincident", 0, 2, 1, 1),
    Sketcher.Constraint("Coincident", 1, 2, 2, 1),
    Sketcher.Constraint("Tangent", 2, 2, 3, 2),
    Sketcher.Constraint("Tangent", 3, 1, 4, 1),
    Sketcher.Constraint("Tangent", 4, 2, 5, 1),
    Sketcher.Constraint("Tangent", 5, 2, 6, 1),
    Sketcher.Constraint("Tangent", 6, 2, 7, 2),
    Sketcher.Constraint("Tangent", 7, 1, 8, 1),
    Sketcher.Constraint("Tangent", 8, 2, 9, 1),
    Sketcher.Constraint("Tangent", 9, 2, 10, 1),
    Sketcher.Constraint("Coincident", 10, 2, 11, 1),
    Sketcher.Constraint("Coincident", 11, 2, 12, 1),
    Sketcher.Constraint("Tangent", 12, 2, 13, 2),
    Sketcher.Constraint("Tangent", 13, 1, 14, 1),
    Sketcher.Constraint("Tangent", 14, 2, 15, 1),
    Sketcher.Constraint("Tangent", 15, 2, 16, 1),
    Sketcher.Constraint("Tangent", 16, 2, 17, 2),
    Sketcher.Constraint("Tangent", 17, 1, 18, 1),
    Sketcher.Constraint("Tangent", 18, 2, 19, 1),
    Sketcher.Constraint("Tangent", 19, 2, 0, 1),
    Sketcher.Constraint("Horizontal", 0),
    Sketcher.Constraint("Vertical", 1),
    Sketcher.Constraint("Horizontal", 2),
    Sketcher.Constraint("Coincident", 13, 3, 9, 3),
    Sketcher.Constraint("Coincident", 15, 3, 7, 3),
    Sketcher.Constraint("Coincident", 17, 3, 5, 3),
    Sketcher.Constraint("Coincident", 19, 3, 3, 3),
    Sketcher.Constraint("Equal", 3, 7),
    Sketcher.Constraint("Equal", 5, 9),
    Sketcher.Constraint("Equal", 7, 13),
    Sketcher.Constraint("Equal", 9, 15),
    Sketcher.Constraint("Equal", 13, 17),
    Sketcher.Constraint("Equal", 15, 19),
    Sketcher.Constraint("Parallel", 4, 10),
    Sketcher.Constraint("Perpendicular", 10, 11),
    Sketcher.Constraint("Perpendicular", 11, 12),
    Sketcher.Constraint("Equal", 6, 8),
    Sketcher.Constraint("Radius", 5, Q("0.01 in")),
    Sketcher.Constraint("Angle", 4, Q("-88 deg")),
    Sketcher.Constraint("Radius", 3, Q("0.022 in")),
    Sketcher.Constraint("DistanceY", 11, 2, -1, 1, Q("0.133 in")),
    Sketcher.Constraint("DistanceX", 0, 2, 0, 1, Q("0.215509 mm")),
    Sketcher.Constraint("DistanceX", -1, 1, 3, 3, Q("2.741999 mm")),
    Sketcher.Constraint("DistanceY", 9, 3, -1, 1, Q("2.649898 mm")),
    Sketcher.Constraint("DistanceX", 12, 2, 13, 1, Q("0.0472 mm")),
    Sketcher.Constraint("DistanceX", -1, 1, 5, 3, Q("3.596269 mm")),
    Sketcher.Constraint("DistanceY", 7, 3, -1, 1, Q("1.51879 mm")),
    Sketcher.Constraint("DistanceX", -1, 1, 9, 3, Q("3.67612 mm")),
])
pad8 = body.newObject("PartDesign::Pad", "Pad007")
pad8.Profile = sketch9
pad8.Length = Q("0.028 in")

# Sketch on an angled plane
sketch10 = body.newObject("Sketcher::SketchObject", "Sketch009")
sketch10.Placement = App.Placement(V(3.325373, 0.116125, 0), App.Rotation(V(0, 0, -1), V(-0.034899497, 0.999390827, 0), V(0.999390827, 0.034899497, 0), "ZXY"))
sketch10.addGeometry([
    Part.LineSegment(V(2.65, -3.49, 0), V(2.65, -2.78, 0)),  # 0
    Part.LineSegment(V(2.65, -2.78, 0), V(2.52, -3.31, 0)),  # 1
    Part.ArcOfCircle(Part.Circle(V(2.29, -3.25, 0), V(0, 0, 1), 0.23), math.radians(-90), math.radians(-14)),  # 2
    Part.LineSegment(V(2.29, -3.49, 0), V(2.65, -3.49, 0)),  # 3
    Part.LineSegment(V(1.94, -3.49, 0), V(2.29, -3.49, 0)),  # 4
    Part.ArcOfCircle(Part.Circle(V(2.29, -3.25, 0), V(0, 0, 1), 0.23), math.radians(-166), math.radians(-90)),  # 5
    Part.LineSegment(V(2.07, -3.31, 0), V(1.94, -2.78, 0)),  # 6
    Part.LineSegment(V(1.94, -2.78, 0), V(1.94, -3.49, 0)),  # 7
], False)
sketch10.addConstraint([
    Sketcher.Constraint("Coincident", 0, 2, 1, 1),
    Sketcher.Constraint("Tangent", 1, 2, 2, 2),
    Sketcher.Constraint("Tangent", 2, 1, 3, 1),
    Sketcher.Constraint("Coincident", 3, 2, 0, 1),
    Sketcher.Constraint("Tangent", 4, 2, 5, 2),
    Sketcher.Constraint("Tangent", 5, 1, 6, 1),
    Sketcher.Constraint("Coincident", 6, 2, 7, 1),
    Sketcher.Constraint("Coincident", 7, 2, 4, 1),
    Sketcher.Constraint("Vertical", 0),
    Sketcher.Constraint("Horizontal", 3),
    Sketcher.Constraint("Horizontal", 4),
    Sketcher.Constraint("Vertical", 7),
    Sketcher.Constraint("Coincident", 5, 3, 2, 3),
    Sketcher.Constraint("Equal", 2, 5),
    Sketcher.Constraint("Horizontal", 1, 2, 5, 1),
    Sketcher.Constraint("Horizontal", 0, 2, 6, 2),
    Sketcher.Constraint("DistanceX", 3, 1, 3, 2, Q("0.014 in")),
    Sketcher.Constraint("Radius", 2, Q("0.23184 mm")),
    Sketcher.Constraint("DistanceY", 0, 1, 0, 2, Q("0.709232 mm")),
    Sketcher.Constraint("DistanceX", -1, 1, 2, 3, Q("2.29235 mm")),
    Sketcher.Constraint("DistanceY", 2, 3, -1, 1, Q("3.253971 mm")),
])
pocket2 = body.newObject("PartDesign::Pocket", "Pocket001")
pocket2.Profile = sketch10
pocket2.Length = Q("0.028 in")

doc.recompute()
